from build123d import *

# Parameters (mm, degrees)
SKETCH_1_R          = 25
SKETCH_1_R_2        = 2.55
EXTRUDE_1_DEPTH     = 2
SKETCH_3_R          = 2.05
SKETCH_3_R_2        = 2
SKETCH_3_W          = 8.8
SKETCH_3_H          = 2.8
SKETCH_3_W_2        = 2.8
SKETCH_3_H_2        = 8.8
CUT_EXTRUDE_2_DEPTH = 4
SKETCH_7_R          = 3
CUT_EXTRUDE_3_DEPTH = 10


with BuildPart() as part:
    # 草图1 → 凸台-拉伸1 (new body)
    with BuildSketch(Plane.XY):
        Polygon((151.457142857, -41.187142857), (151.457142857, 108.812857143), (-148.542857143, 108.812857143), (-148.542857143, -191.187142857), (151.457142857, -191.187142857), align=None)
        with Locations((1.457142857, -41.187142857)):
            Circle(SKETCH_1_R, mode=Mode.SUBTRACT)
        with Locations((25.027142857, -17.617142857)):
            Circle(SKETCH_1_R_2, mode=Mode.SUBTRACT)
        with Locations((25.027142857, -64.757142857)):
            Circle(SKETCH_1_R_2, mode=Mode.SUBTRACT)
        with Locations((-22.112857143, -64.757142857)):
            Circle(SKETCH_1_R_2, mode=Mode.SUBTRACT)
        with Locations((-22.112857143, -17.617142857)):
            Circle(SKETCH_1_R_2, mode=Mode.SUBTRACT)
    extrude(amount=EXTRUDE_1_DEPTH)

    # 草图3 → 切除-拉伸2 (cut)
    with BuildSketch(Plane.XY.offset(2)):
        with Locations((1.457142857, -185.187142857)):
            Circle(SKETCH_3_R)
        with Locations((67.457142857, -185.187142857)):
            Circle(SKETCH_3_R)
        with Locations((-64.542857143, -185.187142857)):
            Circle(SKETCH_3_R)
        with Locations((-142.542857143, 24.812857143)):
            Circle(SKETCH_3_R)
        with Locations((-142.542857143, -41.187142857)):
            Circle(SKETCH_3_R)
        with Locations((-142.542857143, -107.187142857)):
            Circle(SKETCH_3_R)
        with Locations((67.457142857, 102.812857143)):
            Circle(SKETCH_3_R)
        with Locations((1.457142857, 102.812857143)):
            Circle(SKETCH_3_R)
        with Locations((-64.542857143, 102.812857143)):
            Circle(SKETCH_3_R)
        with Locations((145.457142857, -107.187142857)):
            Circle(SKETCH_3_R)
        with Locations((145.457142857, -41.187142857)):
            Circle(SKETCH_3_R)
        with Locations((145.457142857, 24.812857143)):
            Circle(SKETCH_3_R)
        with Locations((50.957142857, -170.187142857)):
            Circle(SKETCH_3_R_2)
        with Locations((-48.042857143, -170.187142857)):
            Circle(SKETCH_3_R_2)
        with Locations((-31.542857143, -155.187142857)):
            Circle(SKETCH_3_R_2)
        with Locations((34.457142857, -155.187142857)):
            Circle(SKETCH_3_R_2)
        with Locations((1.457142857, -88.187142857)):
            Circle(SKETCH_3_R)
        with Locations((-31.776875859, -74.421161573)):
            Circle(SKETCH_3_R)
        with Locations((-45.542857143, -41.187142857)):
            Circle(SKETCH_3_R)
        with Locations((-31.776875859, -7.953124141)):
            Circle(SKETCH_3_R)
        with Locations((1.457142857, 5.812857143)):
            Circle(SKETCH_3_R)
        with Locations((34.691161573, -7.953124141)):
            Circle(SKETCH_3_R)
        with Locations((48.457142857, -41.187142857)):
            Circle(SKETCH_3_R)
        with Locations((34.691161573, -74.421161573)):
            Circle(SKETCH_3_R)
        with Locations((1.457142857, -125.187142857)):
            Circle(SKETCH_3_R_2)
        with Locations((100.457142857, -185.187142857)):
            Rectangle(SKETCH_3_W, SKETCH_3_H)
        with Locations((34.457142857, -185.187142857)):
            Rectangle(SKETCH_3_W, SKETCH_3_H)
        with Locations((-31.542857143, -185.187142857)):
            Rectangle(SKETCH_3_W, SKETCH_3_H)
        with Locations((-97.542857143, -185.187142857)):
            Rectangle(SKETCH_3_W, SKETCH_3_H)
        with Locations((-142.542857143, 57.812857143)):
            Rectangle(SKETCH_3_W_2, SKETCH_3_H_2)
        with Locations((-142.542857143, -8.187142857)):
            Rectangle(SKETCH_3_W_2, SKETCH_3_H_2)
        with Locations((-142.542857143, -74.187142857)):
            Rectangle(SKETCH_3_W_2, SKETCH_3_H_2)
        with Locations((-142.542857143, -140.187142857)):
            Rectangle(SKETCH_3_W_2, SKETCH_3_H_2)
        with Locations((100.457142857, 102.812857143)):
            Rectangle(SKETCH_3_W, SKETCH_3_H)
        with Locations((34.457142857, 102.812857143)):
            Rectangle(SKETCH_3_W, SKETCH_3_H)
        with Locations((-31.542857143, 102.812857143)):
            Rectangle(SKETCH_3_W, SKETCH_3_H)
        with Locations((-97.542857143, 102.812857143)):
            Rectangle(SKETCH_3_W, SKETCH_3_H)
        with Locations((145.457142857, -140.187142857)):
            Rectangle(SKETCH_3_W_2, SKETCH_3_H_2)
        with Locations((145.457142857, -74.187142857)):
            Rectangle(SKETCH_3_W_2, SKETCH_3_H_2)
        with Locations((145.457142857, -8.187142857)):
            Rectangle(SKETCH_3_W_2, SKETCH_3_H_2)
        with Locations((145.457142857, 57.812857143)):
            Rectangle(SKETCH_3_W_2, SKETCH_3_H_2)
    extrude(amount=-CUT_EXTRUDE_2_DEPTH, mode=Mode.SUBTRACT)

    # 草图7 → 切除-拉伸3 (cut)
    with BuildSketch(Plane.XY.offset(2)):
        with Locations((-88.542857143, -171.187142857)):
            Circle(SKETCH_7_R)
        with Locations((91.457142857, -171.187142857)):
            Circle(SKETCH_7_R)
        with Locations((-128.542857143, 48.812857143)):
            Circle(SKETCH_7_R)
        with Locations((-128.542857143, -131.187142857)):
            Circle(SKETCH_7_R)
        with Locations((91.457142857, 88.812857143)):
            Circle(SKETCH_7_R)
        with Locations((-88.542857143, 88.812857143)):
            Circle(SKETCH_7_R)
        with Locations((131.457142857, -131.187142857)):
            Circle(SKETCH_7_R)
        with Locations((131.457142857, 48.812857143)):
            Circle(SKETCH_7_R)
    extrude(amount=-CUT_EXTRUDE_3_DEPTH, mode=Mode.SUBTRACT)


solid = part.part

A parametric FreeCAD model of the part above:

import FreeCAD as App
import Part
import Sketcher
from FreeCAD import Vector
Q = App.Units.Quantity


def add_polygon(sketch, points):
    """Adds a closed chain of lines whose ends are joined by coincident constraints."""
    first, n = sketch.GeometryCount, len(points)
    for a, b in zip(points, points[1:] + points[:1]):
        sketch.addGeometry(Part.LineSegment(App.Vector(*a, 0), App.Vector(*b, 0)), False)
    for i in range(n):
        sketch.addConstraint(Sketcher.Constraint("Coincident", first + i, 2, first + (i + 1) % n, 1))

doc = App.newDocument("Part")
body = doc.addObject("PartDesign::Body", "Body")

# Sketch on XY plane
sketch1 = doc.addObject("Sketcher::SketchObject", "Sketch")
body.addObject(sketch1)
sketch1.AttachmentSupport = (doc.XY_Plane, [""])
sketch1.MapMode = "FlatFace"
add_polygon(sketch1, [(151.5, 108.8), (-148.5, 108.8), (-148.5, -191.2), (151.5, -191.2)])  # lines 0-3
sketch1.addGeometry(Part.Circle(Vector(-22.1, -64.8, 0), Vector(0, 0, 1), 2.5), False)  # 4
sketch1.addGeometry(Part.Circle(Vector(25, -64.8, 0), Vector(0, 0, 1), 2.5), False)  # 5
sketch1.addGeometry(Part.Circle(Vector(1.5, -41.2, 0), Vector(0, 0, 1), 25), False)  # 6
sketch1.addGeometry(Part.Circle(Vector(-22.1, -17.6, 0), Vector(0, 0, 1), 2.5), False)  # 7
sketch1.addGeometry(Part.Circle(Vector(25, -17.6, 0), Vector(0, 0, 1), 2.5), False)  # 8
sketch1.addConstraint(Sketcher.Constraint("Horizontal", 0))
sketch1.addConstraint(Sketcher.Constraint("Vertical", 1))
sketch1.addConstraint(Sketcher.Constraint("Horizontal", 2))
sketch1.addConstraint(Sketcher.Constraint("Vertical", 3))
sketch1.addConstraint(Sketcher.Constraint("Equal", 4, 5))
sketch1.addConstraint(Sketcher.Constraint("Equal", 5, 7))
sketch1.addConstraint(Sketcher.Constraint("Equal", 7, 8))
sketch1.addConstraint(Sketcher.Constraint("Horizontal", 4, 3, 5, 3))
sketch1.addConstraint(Sketcher.Constraint("Horizontal", 7, 3, 8, 3))
sketch1.addConstraint(Sketcher.Constraint("Vertical", 4, 3, 7, 3))
sketch1.addConstraint(Sketcher.Constraint("Vertical", 5, 3, 8, 3))
sketch1.addConstraint(Sketcher.Constraint("Equal", 2, 1))
sketch1.addConstraint(Sketcher.Constraint("Diameter", 6, Q("50 mm")))
sketch1.addConstraint(Sketcher.Constraint("Diameter", 4, Q("5.1 mm")))
sketch1.addConstraint(Sketcher.Constraint("DistanceX", 0, 2, 0, 1, Q("300 mm")))
sketch1.addConstraint(Sketcher.Constraint("DistanceX", 0, 2, 6, 3, Q("150 mm")))
sketch1.addConstraint(Sketcher.Constraint("DistanceY", 6, 3, 0, 2, Q("150 mm")))
sketch1.addConstraint(Sketcher.Constraint("DistanceX", 4, 3, 5, 3, Q("47.14 mm")))
sketch1.addConstraint(Sketcher.Constraint("DistanceX", 4, 3, 6, 3, Q("23.57 mm")))
sketch1.addConstraint(Sketcher.Constraint("DistanceY", 4, 3, 6, 3, Q("23.57 mm")))
sketch1.addConstraint(Sketcher.Constraint("DistanceY", 6, 3, 7, 3, Q("23.57 mm")))
sketch1.addConstraint(Sketcher.Constraint("DistanceX", 4, 3, -1, 1, Q("22.112857 mm")))
sketch1.addConstraint(Sketcher.Constraint("DistanceY", 4, 3, -1, 1, Q("64.757143 mm")))
pad1 = doc.addObject("PartDesign::Pad", "Pad")
body.addObject(pad1)
pad1.Profile = sketch1
pad1.Length = 2

# Sketch on XY plane
sketch2 = doc.addObject("Sketcher::SketchObject", "Sketch001")
body.addObject(sketch2)
sketch2.AttachmentSupport = (doc.XY_Plane, [""])
sketch2.MapMode = "FlatFace"
sketch2.AttachmentOffset = App.Placement(Vector(0, 0, 2), App.Rotation())
sketch2.addGeometry(Part.Circle(Vector(1.5, -185.2, 0), Vector(0, 0, 1), 2), False)  # 0
sketch2.addGeometry(Part.Circle(Vector(67.5, -185.2, 0), Vector(0, 0, 1), 2), False)  # 1
sketch2.addGeometry(Part.Circle(Vector(-64.5, -185.2, 0), Vector(0, 0, 1), 2), False)  # 2
sketch2.addGeometry(Part.Circle(Vector(-142.5, 24.8, 0), Vector(0, 0, 1), 2), False)  # 3
sketch2.addGeometry(Part.Circle(Vector(-142.5, -41.2, 0), Vector(0, 0, 1), 2), False)  # 4
sketch2.addGeometry(Part.Circle(Vector(-142.5, -107.2, 0), Vector(0, 0, 1), 2), False)  # 5
sketch2.addGeometry(Part.Circle(Vector(67.5, 102.8, 0), Vector(0, 0, 1), 2), False)  # 6
sketch2.addGeometry(Part.Circle(Vector(1.5, 102.8, 0), Vector(0, 0, 1), 2), False)  # 7
sketch2.addGeometry(Part.Circle(Vector(-64.5, 102.8, 0), Vector(0, 0, 1), 2), False)  # 8
sketch2.addGeometry(Part.Circle(Vector(145.5, -107.2, 0), Vector(0, 0, 1), 2), False)  # 9
sketch2.addGeometry(Part.Circle(Vector(145.5, -41.2, 0), Vector(0, 0, 1), 2), False)  # 10
sketch2.addGeometry(Part.Circle(Vector(145.5, 24.8, 0), Vector(0, 0, 1), 2), False)  # 11
sketch2.addGeometry(Part.Circle(Vector(51, -170.2, 0), Vector(0, 0, 1), 2), False)  # 12
sketch2.addGeometry(Part.Circle(Vector(-48, -170.2, 0), Vector(0, 0, 1), 2), False)  # 13
sketch2.addGeometry(Part.Circle(Vector(-31.5, -155.2, 0), Vector(0, 0, 1), 2), False)  # 14
sketch2.addGeometry(Part.Circle(Vector(34.5, -155.2, 0), Vector(0, 0, 1), 2), False)  # 15
sketch2.addGeometry(Part.Circle(Vector(1.5, -88.2, 0), Vector(0, 0, 1), 2), False)  # 16
sketch2.addGeometry(Part.Circle(Vector(-31.8, -74.4, 0), Vector(0, 0, 1), 2), False)  # 17
sketch2.addGeometry(Part.Circle(Vector(-45.5, -41.2, 0), Vector(0, 0, 1), 2), False)  # 18
sketch2.addGeometry(Part.Circle(Vector(-31.8, -8, 0), Vector(0, 0, 1), 2), False)  # 19
sketch2.addGeometry(Part.Circle(Vector(1.5, 5.8, 0), Vector(0, 0, 1), 2), False)  # 20
sketch2.addGeometry(Part.Circle(Vector(34.7, -8, 0), Vector(0, 0, 1), 2), False)  # 21
sketch2.addGeometry(Part.Circle(Vector(48.5, -41.2, 0), Vector(0, 0, 1), 2), False)  # 22
sketch2.addGeometry(Part.Circle(Vector(34.7, -74.4, 0), Vector(0, 0, 1), 2), False)  # 23
sketch2.addGeometry(Part.Circle(Vector(1.5, -125.2, 0), Vector(0, 0, 1), 2), False)  # 24
add_polygon(sketch2, [(96.1, -183.8), (96.1, -186.6), (104.9, -186.6), (104.9, -183.8)])  # lines 25-28
add_polygon(sketch2, [(30.1, -183.8), (30.1, -186.6), (38.9, -186.6), (38.9, -183.8)])  # lines 29-32
add_polygon(sketch2, [(-35.9, -183.8), (-35.9, -186.6), (-27.1, -186.6), (-27.1, -183.8)])  # lines 33-36
add_polygon(sketch2, [(-101.9, -183.8), (-101.9, -186.6), (-93.1, -186.6), (-93.1, -183.8)])  # lines 37-40
add_polygon(sketch2, [(-143.9, 62.2), (-143.9, 53.4), (-141.1, 53.4), (-141.1, 62.2)])  # lines 41-44
add_polygon(sketch2, [(-143.9, -3.8), (-143.9, -12.6), (-141.1, -12.6), (-141.1, -3.8)])  # lines 45-48
add_polygon(sketch2, [(-143.9, -69.8), (-143.9, -78.6), (-141.1, -78.6), (-141.1, -69.8)])  # lines 49-52
add_polygon(sketch2, [(-143.9, -135.8), (-143.9, -144.6), (-141.1, -144.6), (-141.1, -135.8)])  # lines 53-56
add_polygon(sketch2, [(96.1, 104.2), (96.1, 101.4), (104.9, 101.4), (104.9, 104.2)])  # lines 57-60
add_polygon(sketch2, [(30.1, 104.2), (30.1, 101.4), (38.9, 101.4), (38.9, 104.2)])  # lines 61-64
add_polygon(sketch2, [(-35.9, 104.2), (-35.9, 101.4), (-27.1, 101.4), (-27.1, 104.2)])  # lines 65-68
add_polygon(sketch2, [(-101.9, 104.2), (-101.9, 101.4), (-93.1, 101.4), (-93.1, 104.2)])  # lines 69-72
add_polygon(sketch2, [(144.1, -135.8), (144.1, -144.6), (146.9, -144.6), (146.9, -135.8)])  # lines 73-76
add_polygon(sketch2, [(144.1, -69.8), (144.1, -78.6), (146.9, -78.6), (146.9, -69.8)])  # lines 77-80
add_polygon(sketch2, [(144.1, -3.8), (144.1, -12.6), (146.9, -12.6), (146.9, -3.8)])  # lines 81-84
add_polygon(sketch2, [(144.1, 62.2), (144.1, 53.4), (146.9, 53.4), (146.9, 62.2)])  # lines 85-88
sketch2.addConstraint(Sketcher.Constraint("Vertical", 25))
sketch2.addConstraint(Sketcher.Constraint("Horizontal", 26))
sketch2.addConstraint(Sketcher.Constraint("Vertical", 27))
sketch2.addConstraint(Sketcher.Constraint("Horizontal", 28))
sketch2.addConstraint(Sketcher.Constraint("Vertical", 29))
sketch2.addConstraint(Sketcher.Constraint("Horizontal", 30))
sketch2.addConstraint(Sketcher.Constraint("Vertical", 31))
sketch2.addConstraint(Sketcher.Constraint("Horizontal", 32))
sketch2.addConstraint(Sketcher.Constraint("Vertical", 33))
sketch2.addConstraint(Sketcher.Constraint("Horizontal", 34))
sketch2.addConstraint(Sketcher.Constraint("Vertical", 35))
sketch2.addConstraint(Sketcher.Constraint("Horizontal", 36))
sketch2.addConstraint(Sketcher.Constraint("Vertical", 37))
sketch2.addConstraint(Sketcher.Constraint("Horizontal", 38))
sketch2.addConstraint(Sketcher.Constraint("Vertical", 39))
sketch2.addConstraint(Sketcher.Constraint("Horizontal", 40))
sketch2.addConstraint(Sketcher.Constraint("Vertical", 41))
sketch2.addConstraint(Sketcher.Constraint("Horizontal", 42))
sketch2.addConstraint(Sketcher.Constraint("Vertical", 43))
sketch2.addConstraint(Sketcher.Constraint("Horizontal", 44))
sketch2.addConstraint(Sketcher.Constraint("Vertical", 45))
sketch2.addConstraint(Sketcher.Constraint("Horizontal", 46))
sketch2.addConstraint(Sketcher.Constraint("Vertical", 47))
sketch2.addConstraint(Sketcher.Constraint("Horizontal", 48))
sketch2.addConstraint(Sketcher.Constraint("Vertical", 49))
sketch2.addConstraint(Sketcher.Constraint("Horizontal", 50))
sketch2.addConstraint(Sketcher.Constraint("Vertical", 51))
sketch2.addConstraint(Sketcher.Constraint("Horizontal", 52))
sketch2.addConstraint(Sketcher.Constraint("Vertical", 53))
sketch2.addConstraint(Sketcher.Constraint("Horizontal", 54))
sketch2.addConstraint(Sketcher.Constraint("Vertical", 55))
sketch2.addConstraint(Sketcher.Constraint("Horizontal", 56))
sketch2.addConstraint(Sketcher.Constraint("Vertical", 57))
sketch2.addConstraint(Sketcher.Constraint("Horizontal", 58))
sketch2.addConstraint(Sketcher.Constraint("Vertical", 59))
sketch2.addConstraint(Sketcher.Constraint("Horizontal", 60))
sketch2.addConstraint(Sketcher.Constraint("Vertical", 61))
sketch2.addConstraint(Sketcher.Constraint("Horizontal", 62))
sketch2.addConstraint(Sketcher.Constraint("Vertical", 63))
sketch2.addConstraint(Sketcher.Constraint("Horizontal", 64))
sketch2.addConstraint(Sketcher.Constraint("Vertical", 65))
sketch2.addConstraint(Sketcher.Constraint("Horizontal", 66))
sketch2.addConstraint(Sketcher.Constraint("Vertical", 67))
sketch2.addConstraint(Sketcher.Constraint("Horizontal", 68))
sketch2.addConstraint(Sketcher.Constraint("Vertical", 69))
sketch2.addConstraint(Sketcher.Constraint("Horizontal", 70))
sketch2.addConstraint(Sketcher.Constraint("Vertical", 71))
sketch2.addConstraint(Sketcher.Constraint("Horizontal", 72))
sketch2.addConstraint(Sketcher.Constraint("Vertical", 73))
sketch2.addConstraint(Sketcher.Constraint("Horizontal", 74))
sketch2.addConstraint(Sketcher.Constraint("Vertical", 75))
sketch2.addConstraint(Sketcher.Constraint("Horizontal", 76))
sketch2.addConstraint(Sketcher.Constraint("Vertical", 77))
sketch2.addConstraint(Sketcher.Constraint("Horizontal", 78))
sketch2.addConstraint(Sketcher.Constraint("Vertical", 79))
sketch2.addConstraint(Sketcher.Constraint("Horizontal", 80))
sketch2.addConstraint(Sketcher.Constraint("Vertical", 81))
sketch2.addConstraint(Sketcher.Constraint("Horizontal", 82))
sketch2.addConstraint(Sketcher.Constraint("Vertical", 83))
sketch2.addConstraint(Sketcher.Constraint("Horizontal", 84))
sketch2.addConstraint(Sketcher.Constraint("Vertical", 85))
sketch2.addConstraint(Sketcher.Constraint("Horizontal", 86))
sketch2.addConstraint(Sketcher.Constraint("Vertical", 87))
sketch2.addConstraint(Sketcher.Constraint("Horizontal", 88))
sketch2.addConstraint(Sketcher.Constraint("Equal", 0, 1))
sketch2.addConstraint(Sketcher.Constraint("Equal", 1, 2))
sketch2.addConstraint(Sketcher.Constraint("Equal", 2, 3))
sketch2.addConstraint(Sketcher.Constraint("Equal", 3, 4))
sketch2.addConstraint(Sketcher.Constraint("Equal", 4, 5))
sketch2.addConstraint(Sketcher.Constraint("Equal", 5, 6))
sketch2.addConstraint(Sketcher.Constraint("Equal", 6, 7))
sketch2.addConstraint(Sketcher.Constraint("Equal", 7, 8))
sketch2.addConstraint(Sketcher.Constraint("Equal", 8, 9))
sketch2.addConstraint(Sketcher.Constraint("Equal", 9, 10))
sketch2.addConstraint(Sketcher.Constraint("Equal", 10, 11))
sketch2.addConstraint(Sketcher.Constraint("Equal", 12, 13))
sketch2.addConstraint(Sketcher.Constraint("Equal", 13, 14))
sketch2.addConstraint(Sketcher.Constraint("Equal", 14, 15))
sketch2.addConstraint(Sketcher.Constraint("Equal", 11, 16))
sketch2.addConstraint(Sketcher.Constraint("Equal", 16, 17))
sketch2.addConstraint(Sketcher.Constraint("Equal", 17, 18))
sketch2.addConstraint(Sketcher.Constraint("Equal", 18, 19))
sketch2.addConstraint(Sketcher.Constraint("Equal", 19, 20))
sketch2.addConstraint(Sketcher.Constraint("Equal", 20, 21))
sketch2.addConstraint(Sketcher.Constraint("Equal", 21, 22))
sketch2.addConstraint(Sketcher.Constraint("Equal", 22, 23))
sketch2.addConstraint(Sketcher.Constraint("Equal", 15, 24))
sketch2.addConstraint(Sketcher.Constraint("Horizontal", 0, 3, 1, 3))
sketch2.addConstraint(Sketcher.Constraint("Horizontal", 1, 3, 2, 3))
sketch2.addConstraint(Sketcher.Constraint("Horizontal", 6, 3, 7, 3))
sketch2.addConstraint(Sketcher.Constraint("Horizontal", 7, 3, 8, 3))
sketch2.addConstraint(Sketcher.Constraint("Horizontal", 5, 3, 9, 3))
sketch2.addConstraint(Sketcher.Constraint("Horizontal", 4, 3, 10, 3))
sketch2.addConstraint(Sketcher.Constraint("Horizontal", 3, 3, 11, 3))
sketch2.addConstraint(Sketcher.Constraint("Horizontal", 12, 3, 13, 3))
sketch2.addConstraint(Sketcher.Constraint("Horizontal", 14, 3, 15, 3))
sketch2.addConstraint(Sketcher.Constraint("Horizontal", 10, 3, 18, 3))
sketch2.addConstraint(Sketcher.Constraint("Horizontal", 19, 3, 21, 3))
sketch2.addConstraint(Sketcher.Constraint("Horizontal", 18, 3, 22, 3))
sketch2.addConstraint(Sketcher.Constraint("Horizontal", 17, 3, 23, 3))
sketch2.addConstraint(Sketcher.Constraint("Horizontal", 26, 2, 29, 2))
sketch2.addConstraint(Sketcher.Constraint("Horizontal", 28, 2, 31, 2))
sketch2.addConstraint(Sketcher.Constraint("Horizontal", 30, 2, 33, 2))
sketch2.addConstraint(Sketcher.Constraint("Horizontal", 32, 2, 35, 2))
sketch2.addConstraint(Sketcher.Constraint("Horizontal", 34, 2, 37, 2))
sketch2.addConstraint(Sketcher.Constraint("Horizontal", 36, 2, 39, 2))
sketch2.addConstraint(Sketcher.Constraint("Horizontal", 58, 2, 61, 2))
sketch2.addConstraint(Sketcher.Constraint("Horizontal", 60, 2, 63, 2))
sketch2.addConstraint(Sketcher.Constraint("Horizontal", 62, 2, 65, 2))
sketch2.addConstraint(Sketcher.Constraint("Horizontal", 64, 2, 67, 2))
sketch2.addConstraint(Sketcher.Constraint("Horizontal", 66, 2, 69, 2))
sketch2.addConstraint(Sketcher.Constraint("Horizontal", 68, 2, 71, 2))
sketch2.addConstraint(Sketcher.Constraint("Horizontal", 54, 2, 73, 2))
sketch2.addConstraint(Sketcher.Constraint("Horizontal", 56, 2, 75, 2))
sketch2.addConstraint(Sketcher.Constraint("Horizontal", 50, 2, 77, 2))
sketch2.addConstraint(Sketcher.Constraint("Horizontal", 52, 2, 79, 2))
sketch2.addConstraint(Sketcher.Constraint("Horizontal", 46, 2, 81, 2))
sketch2.addConstraint(Sketcher.Constraint("Horizontal", 48, 2, 83, 2))
sketch2.addConstraint(Sketcher.Constraint("Horizontal", 42, 2, 85, 2))
sketch2.addConstraint(Sketcher.Constraint("Horizontal", 44, 2, 87, 2))
sketch2.addConstraint(Sketcher.Constraint("Vertical", 3, 3, 4, 3))
sketch2.addConstraint(Sketcher.Constraint("Vertical", 4, 3, 5, 3))
sketch2.addConstraint(Sketcher.Constraint("Vertical", 1, 3, 6, 3))
sketch2.addConstraint(Sketcher.Constraint("Vertical", 0, 3, 7, 3))
sketch2.addConstraint(Sketcher.Constraint("Vertical", 2, 3, 8, 3))
sketch2.addConstraint(Sketcher.Constraint("Vertical", 9, 3, 10, 3))
sketch2.addConstraint(Sketcher.Constraint("Vertical", 10, 3, 11, 3))
sketch2.addConstraint(Sketcher.Constraint("Vertical", 7, 3, 16, 3))
sketch2.addConstraint(Sketcher.Constraint("Vertical", 17, 3, 19, 3))
sketch2.addConstraint(Sketcher.Constraint("Vertical", 16, 3, 20, 3))
sketch2.addConstraint(Sketcher.Constraint("Vertical", 21, 3, 23, 3))
sketch2.addConstraint(Sketcher.Constraint("Vertical", 20, 3, 24, 3))
sketch2.addConstraint(Sketcher.Constraint("Vertical", 44, 2, 45, 2))
sketch2.addConstraint(Sketcher.Constraint("Vertical", 43, 2, 46, 2))
sketch2.addConstraint(Sketcher.Constraint("Vertical", 48, 2, 49, 2))
sketch2.addConstraint(Sketcher.Constraint("Vertical", 47, 2, 50, 2))
sketch2.addConstraint(Sketcher.Constraint("Vertical", 52, 2, 53, 2))
sketch2.addConstraint(Sketcher.Constraint("Vertical", 51, 2, 54, 2))
sketch2.addConstraint(Sketcher.Constraint("Vertical", 28, 2, 57, 2))
sketch2.addConstraint(Sketcher.Constraint("Vertical", 27, 2, 58, 2))
sketch2.addConstraint(Sketcher.Constraint("Vertical", 32, 2, 61, 2))
sketch2.addConstraint(Sketcher.Constraint("Vertical", 31, 2, 62, 2))
sketch2.addConstraint(Sketcher.Constraint("Vertical", 36, 2, 65, 2))
sketch2.addConstraint(Sketcher.Constraint("Vertical", 35, 2, 66, 2))
sketch2.addConstraint(Sketcher.Constraint("Vertical", 40, 2, 69, 2))
sketch2.addConstraint(Sketcher.Constraint("Vertical", 39, 2, 70, 2))
sketch2.addConstraint(Sketcher.Constraint("Vertical", 76, 2, 77, 2))
sketch2.addConstraint(Sketcher.Constraint("Vertical", 75, 2, 78, 2))
sketch2.addConstraint(Sketcher.Constraint("Vertical", 80, 2, 81, 2))
sketch2.addConstraint(Sketcher.Constraint("Vertical", 79, 2, 82, 2))
sketch2.addConstraint(Sketcher.Constraint("Vertical", 84, 2, 85, 2))
sketch2.addConstraint(Sketcher.Constraint("Vertical", 83, 2, 86, 2))
sketch2.addConstraint(Sketcher.Constraint("Equal", 28, 30))
sketch2.addConstraint(Sketcher.Constraint("Equal", 32, 34))
sketch2.addConstraint(Sketcher.Constraint("Equal", 36, 38))
sketch2.addConstraint(Sketcher.Constraint("Equal", 56, 74))
sketch2.addConstraint(Sketcher.Constraint("Equal", 88, 25))
sketch2.addConstraint(Sketcher.Constraint("Equal", 72, 41))
sketch2.addConstraint(Sketcher.Constraint("Equal", 43, 45))
sketch2.addConstraint(Sketcher.Constraint("Equal", 47, 49))
sketch2.addConstraint(Sketcher.Constraint("Equal", 51, 53))
sketch2.addConstraint(Sketcher.Constraint("Equal", 39, 57))
sketch2.addConstraint(Sketcher.Constraint("Diameter", 12, Q("4 mm")))
sketch2.addConstraint(Sketcher.Constraint("Diameter", 0, Q("4.1 mm")))
sketch2.addConstraint(Sketcher.Constraint("DistanceX", 26, 1, 26, 2, Q("8.8 mm")))
sketch2.addConstraint(Sketcher.Constraint("DistanceX", 42, 1, 42, 2, Q("2.8 mm")))
sketch2.addConstraint(Sketcher.Constraint("DistanceY", 17, 3, -1, 1, Q("74.421162 mm")))
sketch2.addConstraint(Sketcher.Constraint("DistanceX", -1, 1, 21, 3, Q("34.691162 mm")))
sketch2.addConstraint(Sketcher.Constraint("DistanceX", -1, 1, 0, 3, Q("1.457143 mm")))
sketch2.addConstraint(Sketcher.Constraint("DistanceY", 0, 3, -1, 1, Q("185.187143 mm")))
sketch2.addConstraint(Sketcher.Constraint("DistanceX", -1, 1, 1, 3, Q("67.457143 mm")))
sketch2.addConstraint(Sketcher.Constraint("DistanceX", 2, 3, -1, 1, Q("64.542857 mm")))
sketch2.addConstraint(Sketcher.Constraint("DistanceX", 3, 3, -1, 1, Q("142.542857 mm")))
sketch2.addConstraint(Sketcher.Constraint("DistanceY", -1, 1, 3, 3, Q("24.812857 mm")))
sketch2.addConstraint(Sketcher.Constraint("DistanceY", 4, 3, -1, 1, Q("41.187143 mm")))
sketch2.addConstraint(Sketcher.Constraint("DistanceY", 5, 3, -1, 1, Q("107.187143 mm")))
sketch2.addConstraint(Sketcher.Constraint("DistanceY", -1, 1, 6, 3, Q("102.812857 mm")))
sketch2.addConstraint(Sketcher.Constraint("DistanceX", -1, 1, 9, 3, Q("145.457143 mm")))
sketch2.addConstraint(Sketcher.Constraint("DistanceX", -1, 1, 12, 3, Q("50.957143 mm")))
sketch2.addConstraint(Sketcher.Constraint("DistanceY", 12, 3, -1, 1, Q("170.187143 mm")))
sketch2.addConstraint(Sketcher.Constraint("DistanceX", 13, 3, -1, 1, Q("48.042857 mm")))
sketch2.addConstraint(Sketcher.Constraint("DistanceX", 14, 3, -1, 1, Q("31.542857 mm")))
sketch2.addConstraint(Sketcher.Constraint("DistanceY", 14, 3, -1, 1, Q("155.187143 mm")))
sketch2.addConstraint(Sketcher.Constraint("DistanceX", -1, 1, 15, 3, Q("34.457143 mm")))
sketch2.addConstraint(Sketcher.Constraint("DistanceY", 16, 3, -1, 1, Q("88.187143 mm")))
sketch2.addConstraint(Sketcher.Constraint("DistanceX", 17, 3, -1, 1, Q("31.776876 mm")))
sketch2.addConstraint(Sketcher.Constraint("DistanceX", 18, 3, -1, 1, Q("45.542857 mm")))
sketch2.addConstraint(Sketcher.Constraint("DistanceY", 19, 3, -1, 1, Q("7.953124 mm")))
sketch2.addConstraint(Sketcher.Constraint("DistanceY", -1, 1, 20, 3, Q("5.812857 mm")))
sketch2.addConstraint(Sketcher.Constraint("DistanceX", -1, 1, 22, 3, Q("48.457143 mm")))
sketch2.addConstraint(Sketcher.Constraint("DistanceY", 24, 3, -1, 1, Q("125.187143 mm")))
sketch2.addConstraint(Sketcher.Constraint("DistanceX", -1, 1, 25, 2, Q("96.057143 mm")))
sketch2.addConstraint(Sketcher.Constraint("DistanceY", 25, 2, -1, 1, Q("186.587143 mm")))
sketch2.addConstraint(Sketcher.Constraint("DistanceX", -1, 1, 29, 2, Q("30.057143 mm")))
sketch2.addConstraint(Sketcher.Constraint("DistanceX", 33, 2, -1, 1, Q("35.942857 mm")))
sketch2.addConstraint(Sketcher.Constraint("DistanceX", 37, 2, -1, 1, Q("101.942857 mm")))
sketch2.addConstraint(Sketcher.Constraint("DistanceX", 41, 2, -1, 1, Q("143.942857 mm")))
sketch2.addConstraint(Sketcher.Constraint("DistanceY", -1, 1, 41, 2, Q("53.412857 mm")))
sketch2.addConstraint(Sketcher.Constraint("DistanceY", 45, 2, -1, 1, Q("12.587143 mm")))
sketch2.addConstraint(Sketcher.Constraint("DistanceY", 49, 2, -1, 1, Q("78.587143 mm")))
sketch2.addConstraint(Sketcher.Constraint("DistanceY", 53, 2, -1, 1, Q("144.587143 mm")))
sketch2.addConstraint(Sketcher.Constraint("DistanceY", -1, 1, 57, 2, Q("101.412857 mm")))
sketch2.addConstraint(Sketcher.Constraint("DistanceX", -1, 1, 73, 2, Q("144.057143 mm")))
pocket1 = doc.addObject("PartDesign::Pocket", "Pocket")
body.addObject(pocket1)
pocket1.Profile = sketch2
pocket1.Length = 4

# Sketch on XY plane
sketch3 = doc.addObject("Sketcher::SketchObject", "Sketch002")
body.addObject(sketch3)
sketch3.AttachmentSupport = (doc.XY_Plane, [""])
sketch3.MapMode = "FlatFace"
sketch3.AttachmentOffset = App.Placement(Vector(0, 0, 2), App.Rotation())
sketch3.addGeometry(Part.Circle(Vector(-88.5, -171.2, 0), Vector(0, 0, 1), 3), False)
sketch3.addGeometry(Part.Circle(Vector(91.5, -171.2, 0), Vector(0, 0, 1), 3), False)
sketch3.addGeometry(Part.Circle(Vector(-128.5, 48.8, 0), Vector(0, 0, 1), 3), False)
sketch3.addGeometry(Part.Circle(Vector(-128.5, -131.2, 0), Vector(0, 0, 1), 3), False)
sketch3.addGeometry(Part.Circle(Vector(91.5, 88.8, 0), Vector(0, 0, 1), 3), False)
sketch3.addGeometry(Part.Circle(Vector(-88.5, 88.8, 0), Vector(0, 0, 1), 3), False)
sketch3.addGeometry(Part.Circle(Vector(131.5, -131.2, 0), Vector(0, 0, 1), 3), False)
sketch3.addGeometry(Part.Circle(Vector(131.5, 48.8, 0), Vector(0, 0, 1), 3), False)
sketch3.addConstraint(Sketcher.Constraint("Equal", 0, 1))
sketch3.addConstraint(Sketcher.Constraint("Equal", 1, 2))
sketch3.addConstraint(Sketcher.Constraint("Equal", 2, 3))
sketch3.addConstraint(Sketcher.Constraint("Equal", 3, 4))
sketch3.addConstraint(Sketcher.Constraint("Equal", 4, 5))
sketch3.addConstraint(Sketcher.Constraint("Equal", 5, 6))
sketch3.addConstraint(Sketcher.Constraint("Equal", 6, 7))
sketch3.addConstraint(Sketcher.Constraint("Horizontal", 0, 3, 1, 3))
sketch3.addConstraint(Sketcher.Constraint("Horizontal", 4, 3, 5, 3))
sketch3.addConstraint(Sketcher.Constraint("Horizontal", 3, 3, 6, 3))
sketch3.addConstraint(Sketcher.Constraint("Horizontal", 2, 3, 7, 3))
sketch3.addConstraint(Sketcher.Constraint("Vertical", 2, 3, 3, 3))
sketch3.addConstraint(Sketcher.Constraint("Vertical", 1, 3, 4, 3))
sketch3.addConstraint(Sketcher.Constraint("Vertical", 0, 3, 5, 3))
sketch3.addConstraint(Sketcher.Constraint("Vertical", 6, 3, 7, 3))
sketch3.addConstraint(Sketcher.Constraint("Diameter", 0, Q("6 mm")))
sketch3.addConstraint(Sketcher.Constraint("DistanceX", 0, 3, 1, 3, Q("180 mm")))
sketch3.addConstraint(Sketcher.Constraint("DistanceX", 2, 3, 0, 3, Q("40 mm")))
sketch3.addConstraint(Sketcher.Constraint("DistanceY", 0, 3, 2, 3, Q("220 mm")))
sketch3.addConstraint(Sketcher.Constraint("DistanceY", 0, 3, 3, 3, Q("40 mm")))
sketch3.addConstraint(Sketcher.Constraint("DistanceY", 2, 3, 4, 3, Q("40 mm")))
sketch3.addConstraint(Sketcher.Constraint("DistanceX", 1, 3, 6, 3, Q("40 mm")))
sketch3.addConstraint(Sketcher.Constraint("DistanceX", 0, 3, -1, 1, Q("88.542857 mm")))
sketch3.addConstraint(Sketcher.Constraint("DistanceY", 0, 3, -1, 1, Q("171.187143 mm")))
pocket2 = doc.addObject("PartDesign::Pocket", "Pocket001")
body.addObject(pocket2)
pocket2.Profile = sketch3
pocket2.Length = 10

doc.recompute()
